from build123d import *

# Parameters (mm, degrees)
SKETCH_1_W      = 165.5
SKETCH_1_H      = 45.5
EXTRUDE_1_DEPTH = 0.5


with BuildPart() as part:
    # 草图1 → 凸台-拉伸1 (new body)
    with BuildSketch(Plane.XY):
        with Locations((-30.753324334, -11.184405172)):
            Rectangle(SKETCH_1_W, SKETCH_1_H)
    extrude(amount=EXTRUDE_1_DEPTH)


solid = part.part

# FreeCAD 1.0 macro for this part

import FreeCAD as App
import Part
import Sketcher
Q = App.Units.Quantity

doc = App.newDocument("Part")
body = doc.addObject("PartDesign::Body", "Body")

# Sketch on XY plane
sketch1 = doc.addObject("Sketcher::SketchObject", "Sketch")
body.addObject(sketch1)
sketch1.AttachmentSupport = (doc.XY_Plane, [""])
sketch1.MapMode = "FlatFace"
sketch1.addGeometry(Part.LineSegment(App.Vector(-113.503324, 11.565595, 0), App.Vector(-113.503324, -33.934405, 0)), False)
sketch1.addGeometry(Part.LineSegment(App.Vector(-113.503324, -33.934405, 0), App.Vector(51.996676, -33.934405, 0)), False)
sketch1.addGeometry(Part.LineSegment(App.Vector(51.996676, -33.934405, 0), App.Vector(51.996676, 11.565595, 0)), False)
sketch1.addGeometry(Part.LineSegment(App.Vector(51.996676, 11.565595, 0), App.Vector(-113.503324, 11.565595, 0)), False)
sketch1.addConstraint(Sketcher.Constraint("Coincident", 0, 2, 1, 1))
sketch1.addConstraint(Sketcher.Constraint("Coincident", 1, 2, 2, 1))
sketch1.addConstraint(Sketcher.Constraint("Coincident", 2, 2, 3, 1))
sketch1.addConstraint(Sketcher.Constraint("Coincident", 3, 2, 0, 1))
sketch1.addConstraint(Sketcher.Constraint("Vertical", 0))
sketch1.addConstraint(Sketcher.Constraint("Horizontal", 1))
sketch1.addConstraint(Sketcher.Constraint("Vertical", 2))
sketch1.addConstraint(Sketcher.Constraint("Horizontal", 3))
sketch1.addConstraint(Sketcher.Constraint("DistanceX", 1, 1, 1, 2, Q("165.5 mm")))
sketch1.addConstraint(Sketcher.Constraint("DistanceY", 0, 2, 0, 1, Q("45.5 mm")))
sketch1.addConstraint(Sketcher.Constraint("DistanceX", 0, 2, -1, 1, Q("113.503324 mm")))
sketch1.addConstraint(Sketcher.Constraint("DistanceY", 0, 2, -1, 1, Q("33.934405 mm")))
pad1 = doc.addObject("PartDesign::Pad", "Pad")
body.addObject(pad1)
pad1.Profile = sketch1
pad1.Length = 0.5

doc.recompute()
